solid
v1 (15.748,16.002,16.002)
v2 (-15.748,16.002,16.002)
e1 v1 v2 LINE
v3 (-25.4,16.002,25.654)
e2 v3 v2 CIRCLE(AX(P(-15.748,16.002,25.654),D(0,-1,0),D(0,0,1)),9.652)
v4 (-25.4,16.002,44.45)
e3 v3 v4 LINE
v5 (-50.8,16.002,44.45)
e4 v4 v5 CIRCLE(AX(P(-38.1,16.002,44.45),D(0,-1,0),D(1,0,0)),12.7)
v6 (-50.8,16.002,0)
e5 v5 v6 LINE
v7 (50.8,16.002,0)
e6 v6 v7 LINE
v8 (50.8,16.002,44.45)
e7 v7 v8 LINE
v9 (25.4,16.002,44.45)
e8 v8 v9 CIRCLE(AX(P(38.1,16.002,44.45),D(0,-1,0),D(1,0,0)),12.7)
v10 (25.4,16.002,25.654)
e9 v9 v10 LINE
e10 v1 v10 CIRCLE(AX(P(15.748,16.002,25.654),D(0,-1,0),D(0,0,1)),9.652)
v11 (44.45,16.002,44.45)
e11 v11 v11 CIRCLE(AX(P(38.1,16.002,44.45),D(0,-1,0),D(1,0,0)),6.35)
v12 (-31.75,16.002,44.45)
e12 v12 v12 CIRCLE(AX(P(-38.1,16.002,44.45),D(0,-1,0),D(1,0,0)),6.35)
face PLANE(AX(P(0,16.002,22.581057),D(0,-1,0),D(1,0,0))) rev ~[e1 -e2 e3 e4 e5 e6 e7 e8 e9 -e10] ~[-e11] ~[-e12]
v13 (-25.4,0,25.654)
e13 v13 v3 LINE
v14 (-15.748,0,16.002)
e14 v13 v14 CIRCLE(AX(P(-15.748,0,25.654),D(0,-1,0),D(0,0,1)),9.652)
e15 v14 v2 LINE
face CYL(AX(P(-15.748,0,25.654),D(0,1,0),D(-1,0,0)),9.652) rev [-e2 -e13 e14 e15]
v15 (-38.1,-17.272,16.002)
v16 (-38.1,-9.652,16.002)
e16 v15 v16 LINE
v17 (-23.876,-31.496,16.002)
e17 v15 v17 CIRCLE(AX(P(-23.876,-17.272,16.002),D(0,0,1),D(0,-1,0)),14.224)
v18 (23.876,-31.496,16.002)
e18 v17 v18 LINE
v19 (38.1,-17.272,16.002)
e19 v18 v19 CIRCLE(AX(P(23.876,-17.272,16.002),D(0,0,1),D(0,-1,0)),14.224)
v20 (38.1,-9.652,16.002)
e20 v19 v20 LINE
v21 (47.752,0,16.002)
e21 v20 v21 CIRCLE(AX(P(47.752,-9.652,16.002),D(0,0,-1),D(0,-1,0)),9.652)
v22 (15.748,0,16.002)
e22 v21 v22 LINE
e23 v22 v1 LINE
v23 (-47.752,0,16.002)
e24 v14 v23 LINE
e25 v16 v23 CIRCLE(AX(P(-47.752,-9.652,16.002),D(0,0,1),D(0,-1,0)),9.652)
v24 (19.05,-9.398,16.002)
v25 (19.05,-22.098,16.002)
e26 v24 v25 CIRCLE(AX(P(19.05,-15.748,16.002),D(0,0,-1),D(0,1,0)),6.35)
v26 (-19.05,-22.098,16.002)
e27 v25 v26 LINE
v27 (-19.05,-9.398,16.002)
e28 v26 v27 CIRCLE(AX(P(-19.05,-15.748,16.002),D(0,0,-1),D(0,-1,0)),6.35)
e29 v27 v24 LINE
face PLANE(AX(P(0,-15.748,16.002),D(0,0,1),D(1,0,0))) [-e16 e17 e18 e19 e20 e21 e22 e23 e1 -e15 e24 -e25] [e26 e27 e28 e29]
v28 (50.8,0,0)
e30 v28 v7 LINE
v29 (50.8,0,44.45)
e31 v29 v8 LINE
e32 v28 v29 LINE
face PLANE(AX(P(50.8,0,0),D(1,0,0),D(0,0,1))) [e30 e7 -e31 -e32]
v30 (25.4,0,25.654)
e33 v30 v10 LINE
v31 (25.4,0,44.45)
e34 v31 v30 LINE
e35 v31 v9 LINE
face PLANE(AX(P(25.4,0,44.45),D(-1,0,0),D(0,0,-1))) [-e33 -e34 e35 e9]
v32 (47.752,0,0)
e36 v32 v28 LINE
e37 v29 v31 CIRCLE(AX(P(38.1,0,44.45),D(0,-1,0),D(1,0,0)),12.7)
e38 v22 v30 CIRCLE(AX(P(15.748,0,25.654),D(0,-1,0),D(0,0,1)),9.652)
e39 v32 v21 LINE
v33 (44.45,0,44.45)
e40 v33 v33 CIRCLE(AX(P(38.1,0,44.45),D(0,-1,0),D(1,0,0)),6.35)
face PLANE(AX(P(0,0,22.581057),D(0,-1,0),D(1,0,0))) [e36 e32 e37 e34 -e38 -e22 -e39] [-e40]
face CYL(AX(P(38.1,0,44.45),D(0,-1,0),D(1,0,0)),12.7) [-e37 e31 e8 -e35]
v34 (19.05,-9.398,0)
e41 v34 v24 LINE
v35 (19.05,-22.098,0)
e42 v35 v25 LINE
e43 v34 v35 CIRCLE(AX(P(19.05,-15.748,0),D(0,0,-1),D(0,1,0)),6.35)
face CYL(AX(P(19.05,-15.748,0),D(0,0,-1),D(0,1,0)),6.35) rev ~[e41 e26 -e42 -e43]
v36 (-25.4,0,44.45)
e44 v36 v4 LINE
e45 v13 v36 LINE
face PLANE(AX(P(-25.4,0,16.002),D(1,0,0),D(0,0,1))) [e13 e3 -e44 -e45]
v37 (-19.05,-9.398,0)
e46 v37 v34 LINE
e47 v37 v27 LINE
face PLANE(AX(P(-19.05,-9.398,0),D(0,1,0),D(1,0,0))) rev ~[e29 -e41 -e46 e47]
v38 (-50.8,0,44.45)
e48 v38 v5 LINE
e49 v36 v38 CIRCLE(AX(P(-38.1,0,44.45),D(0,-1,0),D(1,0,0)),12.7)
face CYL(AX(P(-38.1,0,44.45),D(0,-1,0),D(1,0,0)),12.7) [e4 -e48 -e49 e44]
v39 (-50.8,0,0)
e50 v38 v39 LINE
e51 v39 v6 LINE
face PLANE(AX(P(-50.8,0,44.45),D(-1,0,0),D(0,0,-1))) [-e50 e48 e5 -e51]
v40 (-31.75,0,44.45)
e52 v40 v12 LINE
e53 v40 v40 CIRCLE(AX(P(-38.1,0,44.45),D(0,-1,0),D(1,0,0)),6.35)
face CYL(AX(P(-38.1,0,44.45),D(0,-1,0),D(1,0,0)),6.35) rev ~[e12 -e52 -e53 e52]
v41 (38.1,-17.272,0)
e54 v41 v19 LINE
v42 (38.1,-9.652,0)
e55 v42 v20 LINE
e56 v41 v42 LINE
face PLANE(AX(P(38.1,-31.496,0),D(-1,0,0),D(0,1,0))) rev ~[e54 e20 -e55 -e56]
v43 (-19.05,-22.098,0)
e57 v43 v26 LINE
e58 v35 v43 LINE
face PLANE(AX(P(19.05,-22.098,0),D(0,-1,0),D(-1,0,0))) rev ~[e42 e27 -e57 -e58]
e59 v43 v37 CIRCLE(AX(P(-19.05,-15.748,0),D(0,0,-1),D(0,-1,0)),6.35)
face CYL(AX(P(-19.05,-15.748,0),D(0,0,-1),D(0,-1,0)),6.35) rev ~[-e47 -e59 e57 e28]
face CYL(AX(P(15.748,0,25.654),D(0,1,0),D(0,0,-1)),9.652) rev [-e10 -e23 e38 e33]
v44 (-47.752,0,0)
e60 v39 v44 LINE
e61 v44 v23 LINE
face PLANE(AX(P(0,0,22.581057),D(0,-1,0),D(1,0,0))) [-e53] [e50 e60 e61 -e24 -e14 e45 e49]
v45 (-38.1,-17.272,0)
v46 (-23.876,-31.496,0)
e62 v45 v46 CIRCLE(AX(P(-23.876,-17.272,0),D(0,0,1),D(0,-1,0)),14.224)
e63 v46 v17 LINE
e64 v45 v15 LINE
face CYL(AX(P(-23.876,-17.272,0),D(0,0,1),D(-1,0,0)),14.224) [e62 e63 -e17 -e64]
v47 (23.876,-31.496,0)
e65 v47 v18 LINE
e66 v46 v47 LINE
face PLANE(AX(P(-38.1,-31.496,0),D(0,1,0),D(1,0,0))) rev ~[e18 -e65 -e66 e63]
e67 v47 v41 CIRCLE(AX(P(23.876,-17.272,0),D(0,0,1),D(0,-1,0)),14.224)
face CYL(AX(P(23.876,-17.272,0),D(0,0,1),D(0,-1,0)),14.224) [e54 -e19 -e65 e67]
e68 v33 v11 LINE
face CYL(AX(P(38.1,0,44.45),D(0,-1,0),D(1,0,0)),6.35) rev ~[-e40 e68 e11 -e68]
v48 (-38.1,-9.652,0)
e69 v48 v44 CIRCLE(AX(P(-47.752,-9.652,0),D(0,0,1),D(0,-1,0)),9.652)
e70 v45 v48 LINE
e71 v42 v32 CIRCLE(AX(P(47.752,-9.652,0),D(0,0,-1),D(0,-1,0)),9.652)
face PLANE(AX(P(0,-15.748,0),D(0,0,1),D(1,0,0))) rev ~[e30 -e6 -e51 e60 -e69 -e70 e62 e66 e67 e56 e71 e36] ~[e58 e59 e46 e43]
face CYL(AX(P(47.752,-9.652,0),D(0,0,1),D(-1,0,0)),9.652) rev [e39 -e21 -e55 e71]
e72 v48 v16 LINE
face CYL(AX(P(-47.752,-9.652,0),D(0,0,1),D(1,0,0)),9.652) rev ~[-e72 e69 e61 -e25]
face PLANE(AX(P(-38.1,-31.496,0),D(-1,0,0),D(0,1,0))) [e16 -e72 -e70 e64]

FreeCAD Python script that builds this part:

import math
import FreeCAD as App
import Part
import Sketcher

V = App.Vector
Q = App.Units.Quantity


def edges_at(feature, points):
    """Names of the edges that pass closest to the given points."""
    edges = feature.Shape.Edges
    near = lambda p: min(range(len(edges)), key=lambda i: edges[i].distToShape(Part.Vertex(*p))[0])
    return sorted({f"Edge{near(p) + 1}" for p in points})

doc = App.newDocument("Part")
body = doc.addObject("PartDesign::Body", "Body")

# Sketch on XZ plane
sketch1 = doc.addObject("Sketcher::SketchObject", "Sketch")
body.addObject(sketch1)
sketch1.AttachmentSupport = (doc.XZ_Plane, [""])
sketch1.MapMode = "FlatFace"
sketch1.addGeometry(Part.LineSegment(V(-51, 44, 0), V(-51, 0, 0)), False)
sketch1.addGeometry(Part.LineSegment(V(-51, 0, 0), V(51, 0, 0)), False)
sketch1.addGeometry(Part.LineSegment(V(51, 0, 0), V(51, 44, 0)), False)
sketch1.addGeometry(Part.ArcOfCircle(Part.Circle(V(38, 44, 0), V(0, 0, 1), 13), math.radians(0), math.radians(180)), False)
sketch1.addGeometry(Part.LineSegment(V(25, 44, 0), V(25, 16, 0)), False)
sketch1.addGeometry(Part.LineSegment(V(25, 16, 0), V(-25, 16, 0)), False)
sketch1.addGeometry(Part.LineSegment(V(-25, 16, 0), V(-25, 44, 0)), False)
sketch1.addGeometry(Part.ArcOfCircle(Part.Circle(V(-38, 44, 0), V(0, 0, 1), 13), math.radians(0), math.radians(180)), False)
sketch1.addGeometry(Part.Circle(V(-38, 44, 0), V(0, 0, 1), 6), False)
sketch1.addGeometry(Part.Circle(V(38, 44, 0), V(0, 0, 1), 6), False)
sketch1.addConstraint(Sketcher.Constraint("Coincident", 0, 2, 1, 1))
sketch1.addConstraint(Sketcher.Constraint("Coincident", 1, 2, 2, 1))
sketch1.addConstraint(Sketcher.Constraint("Tangent", 2, 2, 3, 1))
sketch1.addConstraint(Sketcher.Constraint("Tangent", 3, 2, 4, 1))
sketch1.addConstraint(Sketcher.Constraint("Coincident", 4, 2, 5, 1))
sketch1.addConstraint(Sketcher.Constraint("Coincident", 5, 2, 6, 1))
sketch1.addConstraint(Sketcher.Constraint("Tangent", 6, 2, 7, 1))
sketch1.addConstraint(Sketcher.Constraint("Tangent", 7, 2, 0, 1))
sketch1.addConstraint(Sketcher.Constraint("Vertical", 0))
sketch1.addConstraint(Sketcher.Constraint("Horizontal", 1))
sketch1.addConstraint(Sketcher.Constraint("Vertical", 2))
sketch1.addConstraint(Sketcher.Constraint("Vertical", 4))
sketch1.addConstraint(Sketcher.Constraint("Horizontal", 5))
sketch1.addConstraint(Sketcher.Constraint("Vertical", 6))
sketch1.addConstraint(Sketcher.Constraint("Coincident", 8, 3, 7, 3))
sketch1.addConstraint(Sketcher.Constraint("Coincident", 9, 3, 3, 3))
sketch1.addConstraint(Sketcher.Constraint("Equal", 3, 7))
sketch1.addConstraint(Sketcher.Constraint("Equal", 8, 9))
sketch1.addConstraint(Sketcher.Constraint("Symmetric", 0, 2, 1, 2, -1, 1))
sketch1.addConstraint(Sketcher.Constraint("Horizontal", 3, 3, 7, 3))
sketch1.addConstraint(Sketcher.Constraint("Diameter", 8, Q("0.5 in")))
sketch1.addConstraint(Sketcher.Constraint("Radius", 3, Q("0.5 in")))
sketch1.addConstraint(Sketcher.Constraint("DistanceX", 1, 1, 1, 2, Q("4 in")))
sketch1.addConstraint(Sketcher.Constraint("DistanceY", 0, 2, 0, 1, Q("1.75 in")))
sketch1.addConstraint(Sketcher.Constraint("DistanceY", 4, 2, 4, 1, Q("1.12 in")))
pad1 = doc.addObject("PartDesign::Pad", "Pad")
body.addObject(pad1)
pad1.Profile = sketch1
pad1.Length = Q("0.63 in")
pad1.Reversed = True
doc.recompute()

fillet = doc.addObject("PartDesign::Fillet", "Fillet")
body.addObject(fillet)
fillet.Base = (pad1, edges_at(pad1, [(-25.4, 8.001, 16.002), (25.4, 8.001, 16.002)]))
fillet.Radius = Q("0.38 in")

# Sketch on XY plane
sketch2 = doc.addObject("Sketcher::SketchObject", "Sketch001")
body.addObject(sketch2)
sketch2.AttachmentSupport = (doc.XY_Plane, [""])
sketch2.MapMode = "FlatFace"
sketch2.addGeometry(Part.LineSegment(V(-38, 0, 0), V(-38, -31, 0)), False)
sketch2.addGeometry(Part.LineSegment(V(-38, -31, 0), V(38, -31, 0)), False)
sketch2.addGeometry(Part.LineSegment(V(38, -31, 0), V(38, 0, 0)), False)
sketch2.addGeometry(Part.LineSegment(V(38, 0, 0), V(-38, 0, 0)), False)
sketch2.addGeometry(Part.LineSegment(V(19, -22, 0), V(-19, -22, 0)), False)
sketch2.addGeometry(Part.ArcOfCircle(Part.Circle(V(-19, -16, 0), V(0, 0, 1), 6), math.radians(90), math.radians(270)), False)
sketch2.addGeometry(Part.LineSegment(V(-19, -9, 0), V(19, -9, 0)), False)
sketch2.addGeometry(Part.ArcOfCircle(Part.Circle(V(19, -16, 0), V(0, 0, 1), 6), math.radians(-90), math.radians(90)), False)
sketch2.addConstraint(Sketcher.Constraint("Coincident", 0, 2, 1, 1))
sketch2.addConstraint(Sketcher.Constraint("Coincident", 1, 2, 2, 1))
sketch2.addConstraint(Sketcher.Constraint("Coincident", 2, 2, 3, 1))
sketch2.addConstraint(Sketcher.Constraint("Coincident", 3, 2, 0, 1))
sketch2.addConstraint(Sketcher.Constraint("Tangent", 4, 2, 5, 2))
sketch2.addConstraint(Sketcher.Constraint("Tangent", 5, 1, 6, 1))
sketch2.addConstraint(Sketcher.Constraint("Tangent", 6, 2, 7, 2))
sketch2.addConstraint(Sketcher.Constraint("Tangent", 7, 1, 4, 1))
sketch2.addConstraint(Sketcher.Constraint("Vertical", 0))
sketch2.addConstraint(Sketcher.Constraint("Horizontal", 1))
sketch2.addConstraint(Sketcher.Constraint("Vertical", 2))
sketch2.addConstraint(Sketcher.Constraint("Horizontal", 3))
sketch2.addConstraint(Sketcher.Constraint("Horizontal", 4))
sketch2.addConstraint(Sketcher.Constraint("Horizontal", 6))
sketch2.addConstraint(Sketcher.Constraint("Symmetric", 2, 2, 3, 2, -1, 1))
sketch2.addConstraint(Sketcher.Constraint("DistanceX", 1, 1, 1, 2, Q("3 in")))
sketch2.addConstraint(Sketcher.Constraint("Radius", 5, Q("0.25 in")))
sketch2.addConstraint(Sketcher.Constraint("DistanceX", 4, 2, 4, 1, Q("1.5 in")))
sketch2.addConstraint(Sketcher.Constraint("DistanceY", 0, 2, 0, 1, Q("1.24 in")))
sketch2.addConstraint(Sketcher.Constraint("DistanceX", 5, 3, -1, 1, Q("0.75 in")))
sketch2.addConstraint(Sketcher.Constraint("DistanceY", 5, 3, -1, 1, Q("0.62 in")))
pad2 = doc.addObject("PartDesign::Pad", "Pad001")
body.addObject(pad2)
pad2.Profile = sketch2
pad2.Length = Q("0.63 in")
doc.recompute()

fillet2 = doc.addObject("PartDesign::Fillet", "Fillet001")
body.addObject(fillet2)
fillet2.Base = (pad2, edges_at(pad2, [(38.1, -31.496, 8.001), (-38.1, -31.496, 8.001)]))
fillet2.Radius = Q("0.56 in")
doc.recompute()

fillet3 = doc.addObject("PartDesign::Fillet", "Fillet002")
body.addObject(fillet3)
fillet3.Base = (fillet2, edges_at(fillet2, [(38.1, 0, 8.001), (-38.1, 0, 8.001)]))
fillet3.Radius = Q("0.38 in")

doc.recompute()
